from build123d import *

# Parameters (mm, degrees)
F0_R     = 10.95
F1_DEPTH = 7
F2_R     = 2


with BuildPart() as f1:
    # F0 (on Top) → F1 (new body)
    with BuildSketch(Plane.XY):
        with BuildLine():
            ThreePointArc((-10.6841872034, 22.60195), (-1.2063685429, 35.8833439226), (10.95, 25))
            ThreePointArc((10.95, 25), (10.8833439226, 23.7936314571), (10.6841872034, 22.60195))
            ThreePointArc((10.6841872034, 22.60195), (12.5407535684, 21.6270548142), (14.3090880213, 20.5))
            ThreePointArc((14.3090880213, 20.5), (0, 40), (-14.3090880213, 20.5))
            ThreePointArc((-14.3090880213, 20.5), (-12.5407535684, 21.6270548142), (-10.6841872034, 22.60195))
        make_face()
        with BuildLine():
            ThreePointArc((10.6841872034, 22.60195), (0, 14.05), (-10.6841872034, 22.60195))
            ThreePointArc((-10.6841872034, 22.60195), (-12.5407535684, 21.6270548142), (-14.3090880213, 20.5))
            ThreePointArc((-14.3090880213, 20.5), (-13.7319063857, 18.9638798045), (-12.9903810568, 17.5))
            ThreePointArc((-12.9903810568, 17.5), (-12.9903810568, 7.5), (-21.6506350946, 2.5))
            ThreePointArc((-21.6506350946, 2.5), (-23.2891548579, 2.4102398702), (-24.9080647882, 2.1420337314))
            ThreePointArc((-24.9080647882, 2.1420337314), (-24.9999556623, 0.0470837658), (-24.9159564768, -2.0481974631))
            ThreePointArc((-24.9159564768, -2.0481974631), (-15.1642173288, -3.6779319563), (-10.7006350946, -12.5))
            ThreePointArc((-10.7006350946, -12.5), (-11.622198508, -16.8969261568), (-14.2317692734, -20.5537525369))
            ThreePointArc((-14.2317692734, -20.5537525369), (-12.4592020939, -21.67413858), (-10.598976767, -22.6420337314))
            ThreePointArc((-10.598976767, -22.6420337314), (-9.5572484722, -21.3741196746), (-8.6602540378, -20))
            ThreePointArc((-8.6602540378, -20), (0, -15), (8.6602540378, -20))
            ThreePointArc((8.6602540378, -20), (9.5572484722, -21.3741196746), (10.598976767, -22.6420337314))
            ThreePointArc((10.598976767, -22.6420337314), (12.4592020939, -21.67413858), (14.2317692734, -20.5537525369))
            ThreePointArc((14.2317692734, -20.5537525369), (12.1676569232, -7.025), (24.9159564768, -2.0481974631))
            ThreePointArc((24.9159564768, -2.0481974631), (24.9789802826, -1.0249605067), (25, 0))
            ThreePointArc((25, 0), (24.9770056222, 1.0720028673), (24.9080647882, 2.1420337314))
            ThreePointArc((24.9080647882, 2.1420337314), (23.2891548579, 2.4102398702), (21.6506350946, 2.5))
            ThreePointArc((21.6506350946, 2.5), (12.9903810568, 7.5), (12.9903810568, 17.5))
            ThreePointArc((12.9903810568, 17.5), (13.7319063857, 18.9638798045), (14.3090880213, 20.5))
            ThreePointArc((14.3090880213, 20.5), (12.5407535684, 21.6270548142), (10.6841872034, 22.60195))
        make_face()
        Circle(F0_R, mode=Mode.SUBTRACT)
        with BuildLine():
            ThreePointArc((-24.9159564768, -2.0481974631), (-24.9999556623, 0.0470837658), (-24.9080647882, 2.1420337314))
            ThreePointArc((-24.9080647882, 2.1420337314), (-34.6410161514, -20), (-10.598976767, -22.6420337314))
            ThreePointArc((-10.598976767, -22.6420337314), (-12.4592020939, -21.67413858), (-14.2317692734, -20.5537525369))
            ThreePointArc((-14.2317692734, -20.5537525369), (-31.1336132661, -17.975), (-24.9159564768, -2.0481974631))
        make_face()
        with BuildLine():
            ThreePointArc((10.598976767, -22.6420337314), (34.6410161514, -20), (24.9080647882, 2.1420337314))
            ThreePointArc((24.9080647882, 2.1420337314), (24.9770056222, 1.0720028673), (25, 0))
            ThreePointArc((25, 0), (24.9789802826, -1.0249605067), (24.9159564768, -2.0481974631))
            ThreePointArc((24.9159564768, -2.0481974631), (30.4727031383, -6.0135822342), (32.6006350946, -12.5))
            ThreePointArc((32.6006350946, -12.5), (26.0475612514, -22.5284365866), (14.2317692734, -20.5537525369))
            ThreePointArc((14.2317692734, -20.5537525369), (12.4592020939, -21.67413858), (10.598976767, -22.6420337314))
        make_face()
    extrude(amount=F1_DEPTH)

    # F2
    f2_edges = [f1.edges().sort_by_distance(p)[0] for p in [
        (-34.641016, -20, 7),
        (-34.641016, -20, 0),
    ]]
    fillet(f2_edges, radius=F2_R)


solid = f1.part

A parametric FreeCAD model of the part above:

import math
import FreeCAD as App
import Part
import Sketcher
Q = App.Units.Quantity


def edges_at(feature, points):
    """Names of the edges that pass closest to the given points."""
    edges = feature.Shape.Edges
    near = lambda p: min(range(len(edges)), key=lambda i: edges[i].distToShape(Part.Vertex(*p))[0])
    return sorted({f"Edge{near(p) + 1}" for p in points})

doc = App.newDocument("Part")
body = doc.addObject("PartDesign::Body", "Body")

sketch1 = body.newObject("Sketcher::SketchObject", "Sketch")
sketch1.AttachmentSupport = (doc.getObject("XY_Plane"), [""])
sketch1.MapMode = "FlatFace"
sketch1.addGeometry([
    Part.ArcOfCircle(Part.Circle(App.Vector(0, 25, 0), App.Vector(0, 0, 1), 15), math.radians(-17), math.radians(197)),
    Part.ArcOfCircle(Part.Circle(App.Vector(0, 25, 0), App.Vector(0, 0, 1), 15), math.radians(-162.54), math.radians(-150)),
    Part.ArcOfCircle(Part.Circle(App.Vector(-21.7, 12.5, 0), App.Vector(0, 0, 1), 10), math.radians(-90), math.radians(30)),
    Part.ArcOfCircle(Part.Circle(App.Vector(-21.7, -12.5, 0), App.Vector(0, 0, 1), 15), math.radians(90), math.radians(102.54)),
    Part.ArcOfCircle(Part.Circle(App.Vector(-21.7, -12.5, 0), App.Vector(0, 0, 1), 15), math.radians(103), math.radians(317)),
    Part.ArcOfCircle(Part.Circle(App.Vector(-21.7, -12.5, 0), App.Vector(0, 0, 1), 15), math.radians(-42.54), math.radians(-30)),
    Part.ArcOfCircle(Part.Circle(App.Vector(0, -25, 0), App.Vector(0, 0, 1), 10), math.radians(30), math.radians(150)),
    Part.ArcOfCircle(Part.Circle(App.Vector(21.7, -12.5, 0), App.Vector(0, 0, 1), 15), math.radians(-150), math.radians(-137.46)),
    Part.ArcOfCircle(Part.Circle(App.Vector(21.7, -12.5, 0), App.Vector(0, 0, 1), 15), math.radians(-137), math.radians(77)),
    Part.ArcOfCircle(Part.Circle(App.Vector(21.7, -12.5, 0), App.Vector(0, 0, 1), 15), math.radians(77.46), math.radians(90)),
    Part.ArcOfCircle(Part.Circle(App.Vector(21.7, 12.5, 0), App.Vector(0, 0, 1), 10), math.radians(150), math.radians(270)),
    Part.ArcOfCircle(Part.Circle(App.Vector(0, 25, 0), App.Vector(0, 0, 1), 15), math.radians(-30), math.radians(-17.46)),
    Part.ArcOfCircle(Part.Circle(App.Vector(21.7, -12.5, 0), App.Vector(0, 0, 1), 10.9), math.radians(73), math.radians(227)),
    Part.ArcOfCircle(Part.Circle(App.Vector(21.7, -12.5, 0), App.Vector(0, 0, 1), 10.9), math.radians(0), math.radians(73)),
    Part.ArcOfCircle(Part.Circle(App.Vector(21.7, -12.5, 0), App.Vector(0, 0, 1), 10.9), math.radians(-133), math.radians(0)),
    Part.ArcOfCircle(Part.Circle(App.Vector(-21.7, -12.5, 0), App.Vector(0, 0, 1), 10.9), math.radians(0), math.radians(107)),
    Part.ArcOfCircle(Part.Circle(App.Vector(-21.7, -12.5, 0), App.Vector(0, 0, 1), 10.9), math.radians(-47), math.radians(0)),
    Part.ArcOfCircle(Part.Circle(App.Vector(-21.7, -12.5, 0), App.Vector(0, 0, 1), 10.9), math.radians(107), math.radians(313)),
    Part.Circle(App.Vector(0, 0, 0), App.Vector(0, 0, 1), 10.9),
    Part.ArcOfCircle(Part.Circle(App.Vector(0, 25, 0), App.Vector(0, 0, 1), 10.9), math.radians(0), math.radians(193)),
    Part.ArcOfCircle(Part.Circle(App.Vector(0, 25, 0), App.Vector(0, 0, 1), 11), math.radians(-12.65), math.radians(0)),
    Part.ArcOfCircle(Part.Circle(App.Vector(0, 25, 0), App.Vector(0, 0, 1), 10.9), math.radians(-167), math.radians(-13)),
], False)
sketch1.addConstraint([
    Sketcher.Constraint("Tangent", 0, 2, 1, 1),
    Sketcher.Constraint("Tangent", 1, 2, 2, 2),
    Sketcher.Constraint("Tangent", 2, 1, 3, 1),
    Sketcher.Constraint("Tangent", 3, 2, 4, 1),
    Sketcher.Constraint("Tangent", 4, 2, 5, 1),
    Sketcher.Constraint("Tangent", 5, 2, 6, 2),
    Sketcher.Constraint("Tangent", 6, 1, 7, 1),
    Sketcher.Constraint("Tangent", 7, 2, 8, 1),
    Sketcher.Constraint("Tangent", 8, 2, 9, 1),
    Sketcher.Constraint("Tangent", 9, 2, 10, 2),
    Sketcher.Constraint("Tangent", 10, 1, 11, 1),
    Sketcher.Constraint("Tangent", 11, 2, 0, 1),
    Sketcher.Constraint("Tangent", 12, 1, 13, 2),
    Sketcher.Constraint("Tangent", 13, 1, 14, 2),
    Sketcher.Constraint("Tangent", 14, 1, 12, 2),
    Sketcher.Constraint("Tangent", 15, 1, 16, 2),
    Sketcher.Constraint("Tangent", 16, 1, 17, 2),
    Sketcher.Constraint("Tangent", 17, 1, 15, 2),
    Sketcher.Constraint("Tangent", 19, 1, 20, 2),
    Sketcher.Constraint("Tangent", 20, 1, 21, 2),
    Sketcher.Constraint("Tangent", 21, 1, 19, 2),
    Sketcher.Constraint("Coincident", 18, 3, -1, 1),
    Sketcher.Constraint("Coincident", 5, 3, 3, 3),
    Sketcher.Constraint("Coincident", 9, 3, 7, 3),
    Sketcher.Constraint("Coincident", 12, 3, 7, 3),
    Sketcher.Constraint("Coincident", 15, 3, 3, 3),
    Sketcher.Constraint("Coincident", 19, 3, 0, 3),
    Sketcher.Constraint("Equal", 0, 1),
    Sketcher.Constraint("Equal", 1, 3),
    Sketcher.Constraint("Equal", 2, 6),
    Sketcher.Constraint("Equal", 5, 7),
    Sketcher.Constraint("Equal", 6, 10),
    Sketcher.Constraint("Equal", 9, 11),
    Sketcher.Constraint("Equal", 14, 15),
    Sketcher.Constraint("Equal", 17, 18),
    Sketcher.Constraint("Equal", 18, 19),
    Sketcher.Constraint("Symmetric", 0, 3, 6, 3, -1, 1),
    Sketcher.Constraint("Symmetric", 3, 3, 7, 3, -2),
    Sketcher.Constraint("Horizontal", 4, 2, 7, 2),
    Sketcher.Constraint("Horizontal", 3, 2, 8, 2),
    Sketcher.Constraint("Horizontal", 0, 2, 11, 2),
    Sketcher.Constraint("Horizontal", 17, 3, 13, 1),
    Sketcher.Constraint("Horizontal", 13, 1, 15, 1),
    Sketcher.Constraint("Horizontal", 14, 1, 16, 1),
    Sketcher.Constraint("Horizontal", 12, 1, 17, 1),
    Sketcher.Constraint("Horizontal", 21, 3, 19, 1),
    Sketcher.Constraint("Horizontal", 20, 1, 21, 1),
    Sketcher.Constraint("Vertical", 2, 3, 3, 3),
    Sketcher.Constraint("Radius", 0, Q("15 mm")),
    Sketcher.Constraint("Radius", 2, Q("10 mm")),
    Sketcher.Constraint("Diameter", 18, Q("21.9 mm")),
    Sketcher.Constraint("DistanceY", -1, 1, 0, 3, Q("25 mm")),
    Sketcher.Constraint("DistanceY", 2, 3, 0, 2, Q("8 mm")),
    Sketcher.Constraint("DistanceX", 20, 1, 11, 2, Q("3.624901 mm")),
    Sketcher.Constraint("DistanceX", -1, 1, 14, 1, Q("14.231769 mm")),
    Sketcher.Constraint("DistanceX", 3, 2, 2, 1, Q("3.25743 mm")),
    Sketcher.Constraint("DistanceX", 16, 3, 4, 2, Q("11.051658 mm")),
    Sketcher.Constraint("DistanceX", 8, 2, 12, 1, Q("0.007892 mm")),
])
pad1 = body.newObject("PartDesign::Pad", "Pad")
pad1.Profile = sketch1
pad1.Length = 7
doc.recompute()

fillet = body.newObject("PartDesign::Fillet", "Fillet")
fillet.Base = (pad1, edges_at(pad1, [(-34.641, -20, 7), (-34.641, -20, 0)]))
fillet.Radius = 2

doc.recompute()
